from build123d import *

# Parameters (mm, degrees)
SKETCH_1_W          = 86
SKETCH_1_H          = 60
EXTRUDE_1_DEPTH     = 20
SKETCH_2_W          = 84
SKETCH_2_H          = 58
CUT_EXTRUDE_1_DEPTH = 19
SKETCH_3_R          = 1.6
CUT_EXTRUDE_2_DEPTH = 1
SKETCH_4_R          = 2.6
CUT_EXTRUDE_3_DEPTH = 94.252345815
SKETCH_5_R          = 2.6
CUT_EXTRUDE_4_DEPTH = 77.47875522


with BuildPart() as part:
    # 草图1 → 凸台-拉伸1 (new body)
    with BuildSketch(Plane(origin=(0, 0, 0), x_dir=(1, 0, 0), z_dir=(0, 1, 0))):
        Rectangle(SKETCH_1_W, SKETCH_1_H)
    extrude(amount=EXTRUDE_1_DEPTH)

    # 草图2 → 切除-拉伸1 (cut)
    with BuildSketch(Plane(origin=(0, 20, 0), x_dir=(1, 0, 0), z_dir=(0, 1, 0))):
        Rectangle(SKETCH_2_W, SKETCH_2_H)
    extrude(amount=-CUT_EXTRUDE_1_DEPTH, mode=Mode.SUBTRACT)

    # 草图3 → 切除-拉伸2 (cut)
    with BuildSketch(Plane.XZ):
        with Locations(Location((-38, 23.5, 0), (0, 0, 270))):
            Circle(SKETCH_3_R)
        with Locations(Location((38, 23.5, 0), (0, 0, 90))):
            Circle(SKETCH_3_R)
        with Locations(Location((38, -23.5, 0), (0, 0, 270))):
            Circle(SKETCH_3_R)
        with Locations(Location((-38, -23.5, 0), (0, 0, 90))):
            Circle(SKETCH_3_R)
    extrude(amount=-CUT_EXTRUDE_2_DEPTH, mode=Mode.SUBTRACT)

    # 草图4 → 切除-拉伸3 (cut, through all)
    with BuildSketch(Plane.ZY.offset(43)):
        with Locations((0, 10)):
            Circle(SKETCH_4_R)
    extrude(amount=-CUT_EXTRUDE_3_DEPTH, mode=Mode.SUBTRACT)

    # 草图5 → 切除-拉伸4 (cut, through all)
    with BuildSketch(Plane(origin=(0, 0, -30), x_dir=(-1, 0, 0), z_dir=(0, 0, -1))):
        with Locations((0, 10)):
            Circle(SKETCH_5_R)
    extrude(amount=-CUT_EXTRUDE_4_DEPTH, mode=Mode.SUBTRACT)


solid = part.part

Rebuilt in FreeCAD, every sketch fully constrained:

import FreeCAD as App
import Part
import Sketcher
from FreeCAD import Vector


def add_polygon(sketch, points):
    """Adds a closed chain of lines whose ends are joined by coincident constraints."""
    first, n = sketch.GeometryCount, len(points)
    for a, b in zip(points, points[1:] + points[:1]):
        sketch.addGeometry(Part.LineSegment(App.Vector(*a, 0), App.Vector(*b, 0)), False)
    for i in range(n):
        sketch.addConstraint(Sketcher.Constraint("Coincident", first + i, 2, first + (i + 1) % n, 1))

doc = App.newDocument("Part")
body = doc.addObject("PartDesign::Body", "Body")

sketch1 = body.newObject("Sketcher::SketchObject", "Sketch")
sketch1.AttachmentSupport = (doc.getObject("XZ_Plane"), [""])
sketch1.MapMode = "FlatFace"
add_polygon(sketch1, [(-43, -30), (-43, 30), (43, 30), (43, -30)])
sketch1.addConstraint([
    Sketcher.Constraint("Vertical", 0),
    Sketcher.Constraint("Horizontal", 1),
    Sketcher.Constraint("Vertical", 2),
    Sketcher.Constraint("Horizontal", 3),
    Sketcher.Constraint("Symmetric", 0, 2, 2, 2, -1, 1),
    Sketcher.Constraint("DistanceX", 1, 1, 1, 2, 86.0),
    Sketcher.Constraint("DistanceY", 0, 1, 0, 2, 60.0),
])
pad1 = body.newObject("PartDesign::Pad", "Pad")
pad1.Profile = sketch1
pad1.Length = 20
pad1.Reversed = True

sketch2 = body.newObject("Sketcher::SketchObject", "Sketch001")
sketch2.AttachmentSupport = (doc.getObject("XZ_Plane"), [""])
sketch2.MapMode = "FlatFace"
sketch2.AttachmentOffset = App.Placement(Vector(0, 0, -20), App.Rotation())
add_polygon(sketch2, [(-42, -29), (-42, 29), (42, 29), (42, -29)])
sketch2.addConstraint([
    Sketcher.Constraint("Vertical", 0),
    Sketcher.Constraint("Horizontal", 1),
    Sketcher.Constraint("Vertical", 2),
    Sketcher.Constraint("Horizontal", 3),
    Sketcher.Constraint("Symmetric", 0, 2, 2, 2, -1, 1),
    Sketcher.Constraint("DistanceX", 1, 1, 1, 2, 84.0),
    Sketcher.Constraint("DistanceY", 0, 1, 0, 2, 58.0),
])
pocket1 = body.newObject("PartDesign::Pocket", "Pocket")
pocket1.Profile = sketch2
pocket1.Length = 19
pocket1.Reversed = True

sketch3 = body.newObject("Sketcher::SketchObject", "Sketch002")
sketch3.AttachmentSupport = (doc.getObject("XZ_Plane"), [""])
sketch3.MapMode = "FlatFace"
sketch3.addGeometry([
    Part.Circle(Vector(-38, 23.5, 0), Vector(0, 0, 1), 1.6),
    Part.Circle(Vector(38, 23.5, 0), Vector(0, 0, 1), 1.6),
    Part.Circle(Vector(38, -23.5, 0), Vector(0, 0, 1), 1.6),
    Part.Circle(Vector(-38, -23.5, 0), Vector(0, 0, 1), 1.6),
], False)
sketch3.addConstraint([
    Sketcher.Constraint("Equal", 0, 1),
    Sketcher.Constraint("Equal", 1, 2),
    Sketcher.Constraint("Equal", 2, 3),
    Sketcher.Constraint("Symmetric", 0, 3, 2, 3, -1, 1),
    Sketcher.Constraint("Symmetric", 1, 3, 3, 3, -1, 1),
    Sketcher.Constraint("Symmetric", 0, 3, 1, 3, -2),
    Sketcher.Constraint("Diameter", 0, 3.2),
    Sketcher.Constraint("DistanceX", 0, 3, -1, 1, 38.0),
    Sketcher.Constraint("DistanceY", 2, 3, 1, 3, 47.0),
])
pocket2 = body.newObject("PartDesign::Pocket", "Pocket001")
pocket2.Profile = sketch3
pocket2.Length = 1

sketch4 = body.newObject("Sketcher::SketchObject", "Sketch003")
sketch4.AttachmentSupport = (doc.getObject("YZ_Plane"), [""])
sketch4.MapMode = "FlatFace"
sketch4.AttachmentOffset = App.Placement(Vector(0, 0, -43), App.Rotation())
sketch4.addGeometry(Part.Circle(Vector(10, 0, 0), Vector(0, 0, 1), 2.6), False)
sketch4.addConstraint([
    Sketcher.Constraint("PointOnObject", 0, 3, -1),
    Sketcher.Constraint("Diameter", 0, 5.2),
    Sketcher.Constraint("DistanceX", -1, 1, 0, 3, 10.0),
])
pocket3 = body.newObject("PartDesign::Pocket", "Pocket002")
pocket3.Profile = sketch4
pocket3.Type = "ThroughAll"
pocket3.Reversed = True

sketch5 = body.newObject("Sketcher::SketchObject", "Sketch004")
sketch5.AttachmentSupport = (doc.getObject("XY_Plane"), [""])
sketch5.MapMode = "FlatFace"
sketch5.AttachmentOffset = App.Placement(Vector(0, 0, -30), App.Rotation())
sketch5.addGeometry(Part.Circle(Vector(0, 10, 0), Vector(0, 0, 1), 2.6), False)
sketch5.addConstraint([
    Sketcher.Constraint("PointOnObject", 0, 3, -2),
    Sketcher.Constraint("Diameter", 0, 5.2),
    Sketcher.Constraint("DistanceY", -1, 1, 0, 3, 10.0),
])
pocket4 = body.newObject("PartDesign::Pocket", "Pocket003")
pocket4.Profile = sketch5
pocket4.Type = "ThroughAll"
pocket4.Reversed = True

doc.recompute()
